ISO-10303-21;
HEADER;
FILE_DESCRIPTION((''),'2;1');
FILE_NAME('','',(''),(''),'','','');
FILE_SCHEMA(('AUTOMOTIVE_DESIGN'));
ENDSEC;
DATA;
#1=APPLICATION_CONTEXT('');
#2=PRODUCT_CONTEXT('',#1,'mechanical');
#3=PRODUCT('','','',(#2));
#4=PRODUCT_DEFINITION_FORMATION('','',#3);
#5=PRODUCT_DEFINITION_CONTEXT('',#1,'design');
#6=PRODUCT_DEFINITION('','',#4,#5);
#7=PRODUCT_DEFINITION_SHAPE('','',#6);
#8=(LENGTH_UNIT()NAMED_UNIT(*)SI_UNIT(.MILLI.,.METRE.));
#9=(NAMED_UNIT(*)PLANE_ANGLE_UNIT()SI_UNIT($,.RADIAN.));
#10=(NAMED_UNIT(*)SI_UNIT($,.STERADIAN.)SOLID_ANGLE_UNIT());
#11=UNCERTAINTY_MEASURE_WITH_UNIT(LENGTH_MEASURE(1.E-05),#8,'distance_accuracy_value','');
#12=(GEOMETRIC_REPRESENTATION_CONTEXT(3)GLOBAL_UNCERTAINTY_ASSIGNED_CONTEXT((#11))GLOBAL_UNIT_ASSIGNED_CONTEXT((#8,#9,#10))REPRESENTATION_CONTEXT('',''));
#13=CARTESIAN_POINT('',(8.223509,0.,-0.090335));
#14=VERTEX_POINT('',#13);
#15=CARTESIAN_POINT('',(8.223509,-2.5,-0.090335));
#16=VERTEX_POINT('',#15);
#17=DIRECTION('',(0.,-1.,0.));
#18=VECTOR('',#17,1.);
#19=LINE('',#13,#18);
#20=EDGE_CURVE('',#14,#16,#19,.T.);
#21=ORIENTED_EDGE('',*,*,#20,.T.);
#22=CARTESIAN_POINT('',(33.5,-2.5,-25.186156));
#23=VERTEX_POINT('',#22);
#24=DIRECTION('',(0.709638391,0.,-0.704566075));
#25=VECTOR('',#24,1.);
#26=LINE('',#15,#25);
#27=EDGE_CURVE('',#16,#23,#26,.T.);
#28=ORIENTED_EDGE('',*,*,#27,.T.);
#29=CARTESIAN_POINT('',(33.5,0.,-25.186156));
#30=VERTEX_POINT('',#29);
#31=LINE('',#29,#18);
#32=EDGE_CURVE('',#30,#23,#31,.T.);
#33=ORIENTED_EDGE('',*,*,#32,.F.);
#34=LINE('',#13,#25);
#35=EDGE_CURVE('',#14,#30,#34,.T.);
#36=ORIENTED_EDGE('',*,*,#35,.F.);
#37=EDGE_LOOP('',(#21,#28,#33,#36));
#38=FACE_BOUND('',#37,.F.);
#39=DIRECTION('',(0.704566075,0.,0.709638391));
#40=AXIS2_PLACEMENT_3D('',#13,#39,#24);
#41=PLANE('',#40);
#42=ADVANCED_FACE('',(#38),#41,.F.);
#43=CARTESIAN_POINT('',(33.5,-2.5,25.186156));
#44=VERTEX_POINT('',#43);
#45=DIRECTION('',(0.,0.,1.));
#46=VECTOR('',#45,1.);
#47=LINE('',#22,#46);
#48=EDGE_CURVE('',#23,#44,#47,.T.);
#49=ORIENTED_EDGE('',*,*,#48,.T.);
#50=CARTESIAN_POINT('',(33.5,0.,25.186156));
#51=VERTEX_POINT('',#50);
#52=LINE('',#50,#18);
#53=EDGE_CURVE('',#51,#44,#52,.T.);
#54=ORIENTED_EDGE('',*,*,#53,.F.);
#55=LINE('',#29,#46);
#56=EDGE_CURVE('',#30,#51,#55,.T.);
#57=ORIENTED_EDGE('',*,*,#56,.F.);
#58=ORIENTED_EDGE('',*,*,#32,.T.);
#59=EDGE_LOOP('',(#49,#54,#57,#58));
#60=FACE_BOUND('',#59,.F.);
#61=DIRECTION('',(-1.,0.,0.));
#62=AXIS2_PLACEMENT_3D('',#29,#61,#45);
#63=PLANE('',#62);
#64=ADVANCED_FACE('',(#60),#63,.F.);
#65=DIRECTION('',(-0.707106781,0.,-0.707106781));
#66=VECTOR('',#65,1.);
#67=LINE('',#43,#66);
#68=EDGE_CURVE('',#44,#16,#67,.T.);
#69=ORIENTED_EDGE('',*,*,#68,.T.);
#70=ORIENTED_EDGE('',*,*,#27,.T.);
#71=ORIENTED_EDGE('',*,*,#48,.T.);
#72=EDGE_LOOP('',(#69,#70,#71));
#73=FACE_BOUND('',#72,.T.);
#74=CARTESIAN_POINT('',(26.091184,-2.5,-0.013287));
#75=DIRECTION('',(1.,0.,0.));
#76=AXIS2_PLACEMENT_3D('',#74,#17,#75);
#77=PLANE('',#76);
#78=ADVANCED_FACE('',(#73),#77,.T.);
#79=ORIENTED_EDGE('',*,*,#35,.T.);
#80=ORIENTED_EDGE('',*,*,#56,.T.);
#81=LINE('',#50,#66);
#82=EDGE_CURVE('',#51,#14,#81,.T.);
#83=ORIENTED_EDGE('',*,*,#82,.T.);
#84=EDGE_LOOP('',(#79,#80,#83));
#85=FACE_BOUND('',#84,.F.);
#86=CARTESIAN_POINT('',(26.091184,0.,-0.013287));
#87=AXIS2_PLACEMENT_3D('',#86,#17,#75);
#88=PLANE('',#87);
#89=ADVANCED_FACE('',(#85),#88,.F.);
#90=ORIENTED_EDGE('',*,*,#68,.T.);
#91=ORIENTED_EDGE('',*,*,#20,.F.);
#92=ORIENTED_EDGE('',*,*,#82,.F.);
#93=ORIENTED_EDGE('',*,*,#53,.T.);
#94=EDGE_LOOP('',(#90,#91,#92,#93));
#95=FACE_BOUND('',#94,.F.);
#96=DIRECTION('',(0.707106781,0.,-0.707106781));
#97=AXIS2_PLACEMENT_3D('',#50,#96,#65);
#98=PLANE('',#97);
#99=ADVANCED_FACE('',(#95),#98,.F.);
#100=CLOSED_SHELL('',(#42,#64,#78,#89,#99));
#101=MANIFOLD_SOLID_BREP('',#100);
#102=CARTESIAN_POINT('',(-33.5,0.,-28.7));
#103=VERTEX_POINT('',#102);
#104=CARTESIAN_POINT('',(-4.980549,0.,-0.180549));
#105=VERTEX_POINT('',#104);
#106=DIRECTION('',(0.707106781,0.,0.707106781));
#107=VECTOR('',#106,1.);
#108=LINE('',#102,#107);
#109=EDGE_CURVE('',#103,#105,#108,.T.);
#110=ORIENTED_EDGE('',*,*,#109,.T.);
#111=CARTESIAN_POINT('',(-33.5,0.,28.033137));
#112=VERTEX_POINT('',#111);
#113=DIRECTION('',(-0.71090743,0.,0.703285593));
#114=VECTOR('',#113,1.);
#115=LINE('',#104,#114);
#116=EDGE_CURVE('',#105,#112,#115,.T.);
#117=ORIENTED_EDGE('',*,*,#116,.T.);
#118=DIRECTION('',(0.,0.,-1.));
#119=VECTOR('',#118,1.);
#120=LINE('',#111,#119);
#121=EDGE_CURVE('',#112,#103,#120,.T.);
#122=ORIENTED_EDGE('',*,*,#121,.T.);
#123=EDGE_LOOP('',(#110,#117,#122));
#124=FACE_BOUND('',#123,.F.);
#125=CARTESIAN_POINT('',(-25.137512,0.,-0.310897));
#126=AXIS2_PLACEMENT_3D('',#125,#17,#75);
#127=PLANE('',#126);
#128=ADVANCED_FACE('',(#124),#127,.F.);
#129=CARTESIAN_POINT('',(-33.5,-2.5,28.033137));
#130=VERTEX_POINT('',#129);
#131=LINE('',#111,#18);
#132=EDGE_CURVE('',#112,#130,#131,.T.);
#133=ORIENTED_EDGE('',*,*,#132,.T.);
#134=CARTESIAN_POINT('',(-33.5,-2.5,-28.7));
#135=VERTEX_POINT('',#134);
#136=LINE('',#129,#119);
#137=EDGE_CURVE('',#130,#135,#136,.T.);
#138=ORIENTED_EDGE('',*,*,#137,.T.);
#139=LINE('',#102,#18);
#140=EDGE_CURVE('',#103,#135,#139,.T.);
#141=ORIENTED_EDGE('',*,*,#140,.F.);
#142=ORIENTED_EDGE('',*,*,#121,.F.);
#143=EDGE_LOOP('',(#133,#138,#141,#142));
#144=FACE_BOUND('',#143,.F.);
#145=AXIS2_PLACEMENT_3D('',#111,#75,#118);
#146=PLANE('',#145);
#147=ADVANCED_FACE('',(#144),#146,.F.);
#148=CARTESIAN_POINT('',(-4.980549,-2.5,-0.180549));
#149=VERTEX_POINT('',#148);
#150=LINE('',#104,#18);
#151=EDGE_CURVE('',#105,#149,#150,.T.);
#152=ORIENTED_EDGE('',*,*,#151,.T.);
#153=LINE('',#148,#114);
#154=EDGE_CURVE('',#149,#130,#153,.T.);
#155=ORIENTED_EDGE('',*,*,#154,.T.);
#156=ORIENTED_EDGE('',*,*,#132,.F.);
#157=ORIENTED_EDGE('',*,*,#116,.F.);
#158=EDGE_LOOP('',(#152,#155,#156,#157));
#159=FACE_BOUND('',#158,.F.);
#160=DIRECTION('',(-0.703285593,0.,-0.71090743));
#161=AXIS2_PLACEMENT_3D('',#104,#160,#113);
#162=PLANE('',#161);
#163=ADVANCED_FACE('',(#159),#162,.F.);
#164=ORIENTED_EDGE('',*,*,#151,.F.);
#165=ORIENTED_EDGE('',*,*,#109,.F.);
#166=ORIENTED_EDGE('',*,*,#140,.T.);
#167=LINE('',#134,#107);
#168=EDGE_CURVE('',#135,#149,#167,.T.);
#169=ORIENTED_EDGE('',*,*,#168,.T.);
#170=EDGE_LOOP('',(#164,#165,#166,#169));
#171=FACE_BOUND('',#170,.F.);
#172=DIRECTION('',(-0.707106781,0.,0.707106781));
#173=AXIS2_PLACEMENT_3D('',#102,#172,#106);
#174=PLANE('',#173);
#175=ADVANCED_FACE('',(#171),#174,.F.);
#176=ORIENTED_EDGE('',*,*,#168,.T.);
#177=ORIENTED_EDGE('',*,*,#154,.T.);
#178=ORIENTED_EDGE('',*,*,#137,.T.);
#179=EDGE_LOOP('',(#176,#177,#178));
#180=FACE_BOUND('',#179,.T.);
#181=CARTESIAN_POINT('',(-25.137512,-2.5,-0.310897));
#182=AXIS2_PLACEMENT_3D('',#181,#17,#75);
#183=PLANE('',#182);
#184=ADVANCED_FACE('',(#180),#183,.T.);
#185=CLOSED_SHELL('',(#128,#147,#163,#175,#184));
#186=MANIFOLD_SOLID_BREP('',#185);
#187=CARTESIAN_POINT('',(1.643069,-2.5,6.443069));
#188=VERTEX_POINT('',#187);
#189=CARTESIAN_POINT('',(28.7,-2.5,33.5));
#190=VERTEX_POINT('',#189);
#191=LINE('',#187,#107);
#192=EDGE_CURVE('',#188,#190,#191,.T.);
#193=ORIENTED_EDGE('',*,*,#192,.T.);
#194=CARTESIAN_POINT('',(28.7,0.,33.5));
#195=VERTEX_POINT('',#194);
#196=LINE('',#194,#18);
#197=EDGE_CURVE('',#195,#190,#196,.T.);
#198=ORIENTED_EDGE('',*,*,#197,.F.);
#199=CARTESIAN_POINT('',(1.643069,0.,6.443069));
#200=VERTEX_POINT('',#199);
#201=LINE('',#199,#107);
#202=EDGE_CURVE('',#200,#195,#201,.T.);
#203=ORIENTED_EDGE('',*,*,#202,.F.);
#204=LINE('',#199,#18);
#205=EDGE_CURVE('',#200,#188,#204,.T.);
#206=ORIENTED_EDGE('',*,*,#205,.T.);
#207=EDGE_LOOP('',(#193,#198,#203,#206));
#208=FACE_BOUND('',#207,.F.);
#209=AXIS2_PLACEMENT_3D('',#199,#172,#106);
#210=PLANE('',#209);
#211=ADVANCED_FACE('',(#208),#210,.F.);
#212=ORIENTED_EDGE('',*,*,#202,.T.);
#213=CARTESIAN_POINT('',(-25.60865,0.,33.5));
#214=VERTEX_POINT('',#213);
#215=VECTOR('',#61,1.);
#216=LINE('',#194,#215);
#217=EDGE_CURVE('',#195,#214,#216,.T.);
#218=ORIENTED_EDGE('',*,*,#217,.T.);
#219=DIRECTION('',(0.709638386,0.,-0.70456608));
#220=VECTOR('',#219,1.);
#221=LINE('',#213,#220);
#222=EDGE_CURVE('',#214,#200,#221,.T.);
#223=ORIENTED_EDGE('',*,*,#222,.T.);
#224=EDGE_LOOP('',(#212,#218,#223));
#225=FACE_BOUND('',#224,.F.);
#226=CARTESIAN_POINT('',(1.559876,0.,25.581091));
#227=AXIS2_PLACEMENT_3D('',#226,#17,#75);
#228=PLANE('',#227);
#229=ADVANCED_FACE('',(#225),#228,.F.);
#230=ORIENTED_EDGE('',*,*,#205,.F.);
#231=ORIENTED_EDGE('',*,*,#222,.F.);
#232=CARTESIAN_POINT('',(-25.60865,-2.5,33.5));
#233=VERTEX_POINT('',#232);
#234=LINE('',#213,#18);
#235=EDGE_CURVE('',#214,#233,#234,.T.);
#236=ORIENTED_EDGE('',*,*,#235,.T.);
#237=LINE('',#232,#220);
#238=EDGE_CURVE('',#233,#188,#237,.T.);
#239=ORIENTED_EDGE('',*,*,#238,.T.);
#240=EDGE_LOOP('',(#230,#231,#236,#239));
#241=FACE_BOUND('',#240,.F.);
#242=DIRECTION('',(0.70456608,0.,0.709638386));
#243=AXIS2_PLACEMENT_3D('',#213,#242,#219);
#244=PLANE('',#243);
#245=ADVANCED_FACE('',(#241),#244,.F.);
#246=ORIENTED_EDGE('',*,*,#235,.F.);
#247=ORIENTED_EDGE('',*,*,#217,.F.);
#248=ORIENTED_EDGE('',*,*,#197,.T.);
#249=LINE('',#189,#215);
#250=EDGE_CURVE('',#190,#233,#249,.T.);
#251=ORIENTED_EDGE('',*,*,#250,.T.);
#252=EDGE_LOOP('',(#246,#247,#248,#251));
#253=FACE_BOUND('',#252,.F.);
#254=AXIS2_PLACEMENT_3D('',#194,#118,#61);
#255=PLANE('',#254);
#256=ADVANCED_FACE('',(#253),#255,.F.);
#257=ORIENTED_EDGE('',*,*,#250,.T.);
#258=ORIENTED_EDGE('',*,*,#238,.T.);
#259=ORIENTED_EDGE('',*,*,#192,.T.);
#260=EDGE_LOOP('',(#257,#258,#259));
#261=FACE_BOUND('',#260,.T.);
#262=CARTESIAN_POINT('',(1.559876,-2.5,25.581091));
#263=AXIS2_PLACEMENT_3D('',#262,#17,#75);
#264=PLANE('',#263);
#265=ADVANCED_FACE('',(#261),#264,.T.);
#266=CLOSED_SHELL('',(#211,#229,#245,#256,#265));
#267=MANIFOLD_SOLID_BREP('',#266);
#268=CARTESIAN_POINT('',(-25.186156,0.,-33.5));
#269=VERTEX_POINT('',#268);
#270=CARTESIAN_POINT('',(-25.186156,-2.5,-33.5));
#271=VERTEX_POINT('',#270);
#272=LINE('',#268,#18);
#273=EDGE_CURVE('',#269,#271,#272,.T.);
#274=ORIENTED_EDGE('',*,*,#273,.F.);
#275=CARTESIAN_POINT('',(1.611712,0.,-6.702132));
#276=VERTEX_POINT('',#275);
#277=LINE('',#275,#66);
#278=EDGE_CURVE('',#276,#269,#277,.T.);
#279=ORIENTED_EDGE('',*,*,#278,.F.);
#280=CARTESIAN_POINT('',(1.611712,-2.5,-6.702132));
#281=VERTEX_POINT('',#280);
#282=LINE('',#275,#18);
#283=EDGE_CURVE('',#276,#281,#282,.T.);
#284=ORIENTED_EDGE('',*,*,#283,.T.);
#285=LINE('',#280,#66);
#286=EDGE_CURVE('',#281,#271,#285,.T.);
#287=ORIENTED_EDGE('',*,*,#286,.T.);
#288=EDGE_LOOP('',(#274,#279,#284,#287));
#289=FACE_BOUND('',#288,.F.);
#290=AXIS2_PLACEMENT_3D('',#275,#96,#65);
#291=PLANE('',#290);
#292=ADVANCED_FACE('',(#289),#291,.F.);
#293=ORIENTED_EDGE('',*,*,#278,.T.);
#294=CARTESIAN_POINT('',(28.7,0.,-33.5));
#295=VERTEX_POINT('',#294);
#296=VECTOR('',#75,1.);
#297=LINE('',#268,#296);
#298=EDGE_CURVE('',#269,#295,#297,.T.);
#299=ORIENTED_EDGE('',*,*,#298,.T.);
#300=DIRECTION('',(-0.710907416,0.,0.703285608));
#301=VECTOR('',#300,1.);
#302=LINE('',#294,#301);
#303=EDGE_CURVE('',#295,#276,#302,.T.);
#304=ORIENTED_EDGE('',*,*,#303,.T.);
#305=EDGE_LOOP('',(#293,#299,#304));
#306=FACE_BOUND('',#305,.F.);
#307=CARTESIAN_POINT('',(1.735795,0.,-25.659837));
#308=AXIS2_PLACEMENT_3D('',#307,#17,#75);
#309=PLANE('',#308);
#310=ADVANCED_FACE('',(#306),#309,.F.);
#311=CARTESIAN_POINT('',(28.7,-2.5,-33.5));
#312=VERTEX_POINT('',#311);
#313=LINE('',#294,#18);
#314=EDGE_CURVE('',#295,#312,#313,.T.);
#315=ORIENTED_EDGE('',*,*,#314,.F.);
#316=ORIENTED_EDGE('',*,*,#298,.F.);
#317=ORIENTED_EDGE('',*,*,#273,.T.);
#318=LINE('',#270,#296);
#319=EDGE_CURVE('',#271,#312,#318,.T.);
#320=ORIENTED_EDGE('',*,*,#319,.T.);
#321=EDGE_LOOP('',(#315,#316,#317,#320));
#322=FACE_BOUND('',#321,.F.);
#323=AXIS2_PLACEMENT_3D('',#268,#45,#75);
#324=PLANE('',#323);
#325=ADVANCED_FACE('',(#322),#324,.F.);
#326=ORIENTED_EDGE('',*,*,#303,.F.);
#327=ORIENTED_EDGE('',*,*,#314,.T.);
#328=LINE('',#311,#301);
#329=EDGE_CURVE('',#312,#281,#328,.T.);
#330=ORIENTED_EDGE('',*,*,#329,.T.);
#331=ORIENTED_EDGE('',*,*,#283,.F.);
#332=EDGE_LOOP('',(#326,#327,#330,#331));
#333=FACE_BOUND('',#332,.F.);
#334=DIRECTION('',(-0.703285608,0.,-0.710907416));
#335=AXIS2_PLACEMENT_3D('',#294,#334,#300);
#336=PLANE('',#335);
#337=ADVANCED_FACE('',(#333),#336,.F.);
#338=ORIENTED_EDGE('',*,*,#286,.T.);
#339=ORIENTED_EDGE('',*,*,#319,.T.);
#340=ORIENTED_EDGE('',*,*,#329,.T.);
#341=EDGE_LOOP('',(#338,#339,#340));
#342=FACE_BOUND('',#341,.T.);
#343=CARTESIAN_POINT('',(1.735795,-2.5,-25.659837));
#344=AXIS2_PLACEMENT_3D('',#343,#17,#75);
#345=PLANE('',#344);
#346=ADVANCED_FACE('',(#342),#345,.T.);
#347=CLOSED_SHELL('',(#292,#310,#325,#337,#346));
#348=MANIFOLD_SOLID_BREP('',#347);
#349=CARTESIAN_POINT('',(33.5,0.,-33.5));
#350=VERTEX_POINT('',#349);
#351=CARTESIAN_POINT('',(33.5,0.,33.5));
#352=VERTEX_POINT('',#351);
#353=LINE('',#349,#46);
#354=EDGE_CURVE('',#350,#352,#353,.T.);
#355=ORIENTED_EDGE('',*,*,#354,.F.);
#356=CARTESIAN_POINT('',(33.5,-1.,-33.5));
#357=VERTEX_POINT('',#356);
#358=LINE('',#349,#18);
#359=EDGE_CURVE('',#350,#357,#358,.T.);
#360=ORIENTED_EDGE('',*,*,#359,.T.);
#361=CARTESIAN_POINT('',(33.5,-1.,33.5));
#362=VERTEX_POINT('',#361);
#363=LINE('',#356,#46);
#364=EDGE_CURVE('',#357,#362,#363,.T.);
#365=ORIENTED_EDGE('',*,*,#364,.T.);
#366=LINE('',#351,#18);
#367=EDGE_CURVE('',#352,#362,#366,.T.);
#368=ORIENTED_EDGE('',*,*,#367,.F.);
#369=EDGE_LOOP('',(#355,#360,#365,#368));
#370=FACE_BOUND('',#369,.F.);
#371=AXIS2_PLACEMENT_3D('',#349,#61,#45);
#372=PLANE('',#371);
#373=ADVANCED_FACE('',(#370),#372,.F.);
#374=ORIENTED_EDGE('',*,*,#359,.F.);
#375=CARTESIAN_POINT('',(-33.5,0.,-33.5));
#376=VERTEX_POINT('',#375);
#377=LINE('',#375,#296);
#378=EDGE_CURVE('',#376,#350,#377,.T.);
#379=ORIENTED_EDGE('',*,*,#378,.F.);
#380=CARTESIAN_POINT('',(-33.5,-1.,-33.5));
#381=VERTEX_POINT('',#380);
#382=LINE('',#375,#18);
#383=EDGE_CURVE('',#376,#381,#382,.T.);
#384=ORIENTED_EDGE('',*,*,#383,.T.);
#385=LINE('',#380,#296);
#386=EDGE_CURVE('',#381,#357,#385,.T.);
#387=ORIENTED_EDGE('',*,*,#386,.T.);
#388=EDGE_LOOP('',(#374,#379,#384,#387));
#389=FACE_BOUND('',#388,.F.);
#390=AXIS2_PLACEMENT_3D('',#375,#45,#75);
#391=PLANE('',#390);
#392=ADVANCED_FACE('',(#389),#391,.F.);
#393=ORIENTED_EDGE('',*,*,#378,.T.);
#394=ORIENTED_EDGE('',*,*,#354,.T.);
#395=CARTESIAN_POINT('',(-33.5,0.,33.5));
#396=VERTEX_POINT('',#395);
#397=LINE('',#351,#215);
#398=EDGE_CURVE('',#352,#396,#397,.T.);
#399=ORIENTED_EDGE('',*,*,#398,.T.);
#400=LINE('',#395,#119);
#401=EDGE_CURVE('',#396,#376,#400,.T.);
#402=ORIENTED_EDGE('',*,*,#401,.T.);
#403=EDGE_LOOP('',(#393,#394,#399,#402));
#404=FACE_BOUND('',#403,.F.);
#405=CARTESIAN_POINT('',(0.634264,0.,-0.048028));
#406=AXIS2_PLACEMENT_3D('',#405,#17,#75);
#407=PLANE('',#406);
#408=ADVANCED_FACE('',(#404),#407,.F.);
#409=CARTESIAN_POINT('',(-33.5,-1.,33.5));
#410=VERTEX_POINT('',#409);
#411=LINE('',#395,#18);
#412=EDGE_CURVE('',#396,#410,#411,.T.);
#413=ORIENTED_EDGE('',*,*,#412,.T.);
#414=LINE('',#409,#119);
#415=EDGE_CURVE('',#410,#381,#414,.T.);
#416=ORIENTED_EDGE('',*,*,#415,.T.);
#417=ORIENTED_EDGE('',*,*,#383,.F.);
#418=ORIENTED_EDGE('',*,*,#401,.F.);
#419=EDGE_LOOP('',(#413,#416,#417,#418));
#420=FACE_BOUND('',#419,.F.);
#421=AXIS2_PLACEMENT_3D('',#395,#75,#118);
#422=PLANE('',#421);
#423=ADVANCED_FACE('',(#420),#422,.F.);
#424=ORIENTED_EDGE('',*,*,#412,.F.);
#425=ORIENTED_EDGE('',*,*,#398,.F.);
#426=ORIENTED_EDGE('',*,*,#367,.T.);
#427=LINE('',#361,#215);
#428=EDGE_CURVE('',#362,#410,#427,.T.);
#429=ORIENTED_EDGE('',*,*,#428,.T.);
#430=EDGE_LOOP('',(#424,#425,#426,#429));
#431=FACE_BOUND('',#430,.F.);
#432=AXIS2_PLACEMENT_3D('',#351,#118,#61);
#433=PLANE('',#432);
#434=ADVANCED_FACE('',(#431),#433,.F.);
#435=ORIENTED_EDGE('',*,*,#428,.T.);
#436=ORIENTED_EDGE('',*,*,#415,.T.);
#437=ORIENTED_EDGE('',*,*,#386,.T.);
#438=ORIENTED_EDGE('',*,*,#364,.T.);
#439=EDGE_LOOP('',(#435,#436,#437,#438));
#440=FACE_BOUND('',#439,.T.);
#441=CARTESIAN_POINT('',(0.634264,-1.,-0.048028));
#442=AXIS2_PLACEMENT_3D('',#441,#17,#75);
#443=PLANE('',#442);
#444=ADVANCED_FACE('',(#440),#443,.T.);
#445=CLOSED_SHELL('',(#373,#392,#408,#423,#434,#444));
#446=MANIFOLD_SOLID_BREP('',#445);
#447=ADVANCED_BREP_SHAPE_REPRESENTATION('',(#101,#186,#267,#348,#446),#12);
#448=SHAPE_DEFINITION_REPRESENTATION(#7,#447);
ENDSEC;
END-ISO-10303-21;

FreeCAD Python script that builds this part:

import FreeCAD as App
import Part
import Sketcher

V = App.Vector
Q = App.Units.Quantity

doc = App.newDocument("Part")
body = doc.addObject("PartDesign::Body", "Body")
body.AllowCompound = True

sketch1 = body.newObject("Sketcher::SketchObject", "Sketch")
sketch1.AttachmentSupport = (doc.getObject("XZ_Plane"), [""])
sketch1.MapMode = "FlatFace"
sketch1.addGeometry(Part.LineSegment(V(-34, 28, 0), V(-34, -29, 0)), False)
sketch1.addGeometry(Part.LineSegment(V(-34, -29, 0), V(-5, 0, 0)), False)
sketch1.addGeometry(Part.LineSegment(V(-5, 0, 0), V(-34, 28, 0)), False)
sketch1.addGeometry(Part.LineSegment(V(2, 6, 0), V(29, 34, 0)), False)
sketch1.addGeometry(Part.LineSegment(V(29, 34, 0), V(-26, 34, 0)), False)
sketch1.addGeometry(Part.LineSegment(V(-26, 34, 0), V(2, 6, 0)), False)
sketch1.addGeometry(Part.LineSegment(V(8, 0, 0), V(34, -25, 0)), False)
sketch1.addGeometry(Part.LineSegment(V(34, -25, 0), V(34, 25, 0)), False)
sketch1.addGeometry(Part.LineSegment(V(34, 25, 0), V(8, 0, 0)), False)
sketch1.addGeometry(Part.LineSegment(V(-25, -34, 0), V(29, -34, 0)), False)
sketch1.addGeometry(Part.LineSegment(V(29, -34, 0), V(2, -7, 0)), False)
sketch1.addGeometry(Part.LineSegment(V(2, -7, 0), V(-25, -34, 0)), False)
sketch1.addConstraint(Sketcher.Constraint("Coincident", 0, 2, 1, 1))
sketch1.addConstraint(Sketcher.Constraint("Coincident", 1, 2, 2, 1))
sketch1.addConstraint(Sketcher.Constraint("Coincident", 2, 2, 0, 1))
sketch1.addConstraint(Sketcher.Constraint("Coincident", 3, 2, 4, 1))
sketch1.addConstraint(Sketcher.Constraint("Coincident", 4, 2, 5, 1))
sketch1.addConstraint(Sketcher.Constraint("Coincident", 5, 2, 3, 1))
sketch1.addConstraint(Sketcher.Constraint("Coincident", 6, 2, 7, 1))
sketch1.addConstraint(Sketcher.Constraint("Coincident", 7, 2, 8, 1))
sketch1.addConstraint(Sketcher.Constraint("Coincident", 8, 2, 6, 1))
sketch1.addConstraint(Sketcher.Constraint("Coincident", 9, 2, 10, 1))
sketch1.addConstraint(Sketcher.Constraint("Coincident", 10, 2, 11, 1))
sketch1.addConstraint(Sketcher.Constraint("Coincident", 11, 2, 9, 1))
sketch1.addConstraint(Sketcher.Constraint("Vertical", 0))
sketch1.addConstraint(Sketcher.Constraint("Horizontal", 4))
sketch1.addConstraint(Sketcher.Constraint("Vertical", 7))
sketch1.addConstraint(Sketcher.Constraint("Horizontal", 9))
sketch1.addConstraint(Sketcher.Constraint("Symmetric", 3, 2, 9, 2, -1))
sketch1.addConstraint(Sketcher.Constraint("Parallel", 1, 3))
sketch1.addConstraint(Sketcher.Constraint("Parallel", 5, 6))
sketch1.addConstraint(Sketcher.Constraint("Parallel", 3, 8))
sketch1.addConstraint(Sketcher.Constraint("Parallel", 2, 10))
sketch1.addConstraint(Sketcher.Constraint("Parallel", 8, 11))
sketch1.addConstraint(Sketcher.Constraint("Angle", 1, Q("45 deg")))
sketch1.addConstraint(Sketcher.Constraint("DistanceX", 0, 2, 6, 2, Q("67 mm")))
sketch1.addConstraint(Sketcher.Constraint("DistanceX", 0, 2, -1, 1, Q("33.5 mm")))
sketch1.addConstraint(Sketcher.Constraint("DistanceY", 0, 2, -1, 1, Q("28.7 mm")))
sketch1.addConstraint(Sketcher.Constraint("DistanceX", -1, 1, 3, 2, Q("28.7 mm")))
sketch1.addConstraint(Sketcher.Constraint("DistanceY", -1, 1, 3, 2, Q("33.5 mm")))
sketch1.addConstraint(Sketcher.Constraint("DistanceX", 4, 2, 4, 1, Q("54.30865 mm")))
sketch1.addConstraint(Sketcher.Constraint("DistanceX", 4, 2, 1, 2, Q("20.628101 mm")))
sketch1.addConstraint(Sketcher.Constraint("DistanceY", 10, 2, 5, 2, Q("13.145201 mm")))
sketch1.addConstraint(Sketcher.Constraint("Distance", 2, Q("40.116969 mm")))
sketch1.addConstraint(Sketcher.Constraint("Distance", 3, Q("38.264279 mm")))
sketch1.addConstraint(Sketcher.Constraint("DistanceY", 7, 1, 7, 2, Q("50.372312 mm")))
sketch1.addConstraint(Sketcher.Constraint("DistanceY", 6, 2, -1, 1, Q("25.186156 mm")))
pad1 = body.newObject("PartDesign::Pad", "Pad")
pad1.Profile = sketch1
pad1.Length = 2.5
body2 = doc.addObject("PartDesign::Body", "Body001")

sketch2 = body2.newObject("Sketcher::SketchObject", "Sketch001")
sketch2.AttachmentSupport = (doc.getObject("XZ_Plane001"), [""])
sketch2.MapMode = "FlatFace"
sketch2.addGeometry(Part.LineSegment(V(34, -34, 0), V(34, 34, 0)), False)
sketch2.addGeometry(Part.LineSegment(V(34, 34, 0), V(-34, 34, 0)), False)
sketch2.addGeometry(Part.LineSegment(V(-34, 34, 0), V(-34, -34, 0)), False)
sketch2.addGeometry(Part.LineSegment(V(-34, -34, 0), V(34, -34, 0)), False)
sketch2.addConstraint(Sketcher.Constraint("Coincident", 0, 2, 1, 1))
sketch2.addConstraint(Sketcher.Constraint("Coincident", 1, 2, 2, 1))
sketch2.addConstraint(Sketcher.Constraint("Coincident", 2, 2, 3, 1))
sketch2.addConstraint(Sketcher.Constraint("Coincident", 3, 2, 0, 1))
sketch2.addConstraint(Sketcher.Constraint("Vertical", 0))
sketch2.addConstraint(Sketcher.Constraint("Horizontal", 1))
sketch2.addConstraint(Sketcher.Constraint("Vertical", 2))
sketch2.addConstraint(Sketcher.Constraint("Horizontal", 3))
sketch2.addConstraint(Sketcher.Constraint("Symmetric", 0, 2, 2, 2, -1, 1))
sketch2.addConstraint(Sketcher.Constraint("Equal", 3, 0))
sketch2.addConstraint(Sketcher.Constraint("DistanceX", 1, 2, 1, 1, Q("67 mm")))
pad2 = body2.newObject("PartDesign::Pad", "Pad001")
pad2.Profile = sketch2
pad2.Length = 1

doc.recompute()
